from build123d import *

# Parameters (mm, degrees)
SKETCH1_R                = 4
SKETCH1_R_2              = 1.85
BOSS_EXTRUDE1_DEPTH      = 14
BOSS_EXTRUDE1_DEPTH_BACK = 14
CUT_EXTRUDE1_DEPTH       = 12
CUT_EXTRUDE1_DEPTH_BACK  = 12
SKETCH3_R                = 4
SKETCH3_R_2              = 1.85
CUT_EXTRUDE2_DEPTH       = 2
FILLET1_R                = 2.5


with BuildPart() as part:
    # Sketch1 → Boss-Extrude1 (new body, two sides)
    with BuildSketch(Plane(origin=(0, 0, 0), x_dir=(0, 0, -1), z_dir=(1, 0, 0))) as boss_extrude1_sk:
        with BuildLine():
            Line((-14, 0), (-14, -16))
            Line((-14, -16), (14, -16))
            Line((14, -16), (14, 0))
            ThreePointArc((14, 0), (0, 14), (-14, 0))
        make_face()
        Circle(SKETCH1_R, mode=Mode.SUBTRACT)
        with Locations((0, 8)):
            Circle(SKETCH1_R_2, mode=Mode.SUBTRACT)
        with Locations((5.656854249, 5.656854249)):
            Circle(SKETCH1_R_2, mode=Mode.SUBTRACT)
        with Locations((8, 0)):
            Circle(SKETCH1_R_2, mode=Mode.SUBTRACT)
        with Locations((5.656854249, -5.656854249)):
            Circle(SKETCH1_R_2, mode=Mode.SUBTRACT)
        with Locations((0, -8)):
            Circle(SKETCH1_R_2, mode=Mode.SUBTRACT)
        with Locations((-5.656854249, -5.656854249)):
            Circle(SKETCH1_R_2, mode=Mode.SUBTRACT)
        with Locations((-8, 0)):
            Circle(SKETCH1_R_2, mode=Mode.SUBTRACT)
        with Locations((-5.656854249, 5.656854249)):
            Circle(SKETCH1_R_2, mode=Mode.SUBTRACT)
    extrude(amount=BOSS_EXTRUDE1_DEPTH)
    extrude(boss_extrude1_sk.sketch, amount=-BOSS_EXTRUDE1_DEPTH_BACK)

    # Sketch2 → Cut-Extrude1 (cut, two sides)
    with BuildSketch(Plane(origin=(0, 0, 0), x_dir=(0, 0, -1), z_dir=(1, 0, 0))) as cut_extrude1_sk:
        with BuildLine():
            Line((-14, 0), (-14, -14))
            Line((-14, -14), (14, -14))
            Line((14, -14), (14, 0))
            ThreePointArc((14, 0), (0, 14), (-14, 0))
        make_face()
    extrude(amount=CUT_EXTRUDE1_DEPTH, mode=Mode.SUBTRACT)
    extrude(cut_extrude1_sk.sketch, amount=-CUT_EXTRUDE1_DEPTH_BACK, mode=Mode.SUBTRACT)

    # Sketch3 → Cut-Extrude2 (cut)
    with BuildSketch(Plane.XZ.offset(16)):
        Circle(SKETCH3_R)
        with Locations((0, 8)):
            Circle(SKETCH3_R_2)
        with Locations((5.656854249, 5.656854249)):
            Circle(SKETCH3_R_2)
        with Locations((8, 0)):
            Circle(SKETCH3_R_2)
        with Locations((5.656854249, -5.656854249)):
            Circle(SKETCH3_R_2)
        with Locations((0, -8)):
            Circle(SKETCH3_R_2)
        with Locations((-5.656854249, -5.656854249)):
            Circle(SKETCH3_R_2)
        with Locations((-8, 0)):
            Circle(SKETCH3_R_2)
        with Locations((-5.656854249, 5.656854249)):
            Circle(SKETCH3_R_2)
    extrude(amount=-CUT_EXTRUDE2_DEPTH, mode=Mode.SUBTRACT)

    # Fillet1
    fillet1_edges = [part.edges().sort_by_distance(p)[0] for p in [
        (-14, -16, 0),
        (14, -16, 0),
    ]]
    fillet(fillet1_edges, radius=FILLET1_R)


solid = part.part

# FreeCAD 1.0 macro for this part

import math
import FreeCAD as App
import Part
import Sketcher

V = App.Vector


def edges_at(feature, points):
    """Names of the edges that pass closest to the given points."""
    edges = feature.Shape.Edges
    near = lambda p: min(range(len(edges)), key=lambda i: edges[i].distToShape(Part.Vertex(*p))[0])
    return sorted({f"Edge{near(p) + 1}" for p in points})

doc = App.newDocument("Part")
body = doc.addObject("PartDesign::Body", "Body")

# Sketch on YZ plane
sketch1 = body.newObject("Sketcher::SketchObject", "Sketch")
sketch1.AttachmentSupport = (doc.getObject("YZ_Plane"), [""])
sketch1.MapMode = "FlatFace"
sketch1.addGeometry(Part.LineSegment(V(0, 14, 0), V(-16, 14, 0)), False)
sketch1.addGeometry(Part.LineSegment(V(-16, 14, 0), V(-16, -14, 0)), False)
sketch1.addGeometry(Part.LineSegment(V(-16, -14, 0), V(0, -14, 0)), False)
sketch1.addGeometry(Part.ArcOfCircle(Part.Circle(V(0, 0, 0), V(0, 0, 1), 14), math.radians(-90), math.radians(90)), False)
sketch1.addGeometry(Part.Circle(V(-5.7, 5.7, 0), V(0, 0, 1), 1.9), False)
sketch1.addGeometry(Part.Circle(V(-8, 0, 0), V(0, 0, 1), 1.9), False)
sketch1.addGeometry(Part.Circle(V(-5.7, -5.7, 0), V(0, 0, 1), 1.9), False)
sketch1.addGeometry(Part.Circle(V(0, 8, 0), V(0, 0, 1), 1.9), False)
sketch1.addGeometry(Part.Circle(V(5.7, 5.7, 0), V(0, 0, 1), 1.9), False)
sketch1.addGeometry(Part.Circle(V(0, 0, 0), V(0, 0, 1), 4), False)
sketch1.addGeometry(Part.Circle(V(0, -8, 0), V(0, 0, 1), 1.9), False)
sketch1.addGeometry(Part.Circle(V(8, 0, 0), V(0, 0, 1), 1.9), False)
sketch1.addGeometry(Part.Circle(V(5.7, -5.7, 0), V(0, 0, 1), 1.9), False)
sketch1.addConstraint(Sketcher.Constraint("Coincident", 0, 2, 1, 1))
sketch1.addConstraint(Sketcher.Constraint("Coincident", 1, 2, 2, 1))
sketch1.addConstraint(Sketcher.Constraint("Tangent", 2, 2, 3, 1))
sketch1.addConstraint(Sketcher.Constraint("Tangent", 3, 2, 0, 1))
sketch1.addConstraint(Sketcher.Constraint("Horizontal", 0))
sketch1.addConstraint(Sketcher.Constraint("Vertical", 1))
sketch1.addConstraint(Sketcher.Constraint("Horizontal", 2))
sketch1.addConstraint(Sketcher.Constraint("Coincident", 3, 3, -1, 1))
sketch1.addConstraint(Sketcher.Constraint("Coincident", 9, 3, -1, 1))
sketch1.addConstraint(Sketcher.Constraint("Equal", 4, 5))
sketch1.addConstraint(Sketcher.Constraint("Equal", 5, 6))
sketch1.addConstraint(Sketcher.Constraint("Equal", 6, 7))
sketch1.addConstraint(Sketcher.Constraint("Equal", 7, 8))
sketch1.addConstraint(Sketcher.Constraint("Equal", 8, 10))
sketch1.addConstraint(Sketcher.Constraint("Equal", 10, 11))
sketch1.addConstraint(Sketcher.Constraint("Equal", 11, 12))
sketch1.addConstraint(Sketcher.Constraint("Symmetric", 6, 3, 8, 3, -1, 1))
sketch1.addConstraint(Sketcher.Constraint("Symmetric", 7, 3, 10, 3, -1, 1))
sketch1.addConstraint(Sketcher.Constraint("Symmetric", 5, 3, 11, 3, -1, 1))
sketch1.addConstraint(Sketcher.Constraint("Symmetric", 4, 3, 12, 3, -1, 1))
sketch1.addConstraint(Sketcher.Constraint("Symmetric", 4, 3, 8, 3, -2))
sketch1.addConstraint(Sketcher.Constraint("PointOnObject", 5, 3, -1))
sketch1.addConstraint(Sketcher.Constraint("PointOnObject", 7, 3, -2))
sketch1.addConstraint(Sketcher.Constraint("Diameter", 9, 8.0))
sketch1.addConstraint(Sketcher.Constraint("Radius", 3, 14.0))
sketch1.addConstraint(Sketcher.Constraint("Diameter", 4, 3.7))
sketch1.addConstraint(Sketcher.Constraint("DistanceX", 0, 2, 0, 1, 16.0))
sketch1.addConstraint(Sketcher.Constraint("DistanceX", 5, 3, -1, 1, 8.0))
sketch1.addConstraint(Sketcher.Constraint("DistanceY", -1, 1, 7, 3, 8.0))
sketch1.addConstraint(Sketcher.Constraint("DistanceY", 6, 3, 4, 3, 11.313708))
sketch1.addConstraint(Sketcher.Constraint("DistanceX", 4, 3, 8, 3, 11.313708))
pad1 = body.newObject("PartDesign::Pad", "Pad")
pad1.Profile = sketch1
pad1.Type = "TwoLengths"
pad1.Length = 14
pad1.Length2 = 14

# Sketch on YZ plane
sketch2 = body.newObject("Sketcher::SketchObject", "Sketch001")
sketch2.AttachmentSupport = (doc.getObject("YZ_Plane"), [""])
sketch2.MapMode = "FlatFace"
sketch2.addGeometry(Part.LineSegment(V(0, 14, 0), V(-14, 14, 0)), False)
sketch2.addGeometry(Part.LineSegment(V(-14, 14, 0), V(-14, -14, 0)), False)
sketch2.addGeometry(Part.LineSegment(V(-14, -14, 0), V(0, -14, 0)), False)
sketch2.addGeometry(Part.ArcOfCircle(Part.Circle(V(0, 0, 0), V(0, 0, 1), 14), math.radians(-90), math.radians(90)), False)
sketch2.addConstraint(Sketcher.Constraint("Coincident", 0, 2, 1, 1))
sketch2.addConstraint(Sketcher.Constraint("Coincident", 1, 2, 2, 1))
sketch2.addConstraint(Sketcher.Constraint("Tangent", 2, 2, 3, 1))
sketch2.addConstraint(Sketcher.Constraint("Tangent", 3, 2, 0, 1))
sketch2.addConstraint(Sketcher.Constraint("Horizontal", 0))
sketch2.addConstraint(Sketcher.Constraint("Vertical", 1))
sketch2.addConstraint(Sketcher.Constraint("Horizontal", 2))
sketch2.addConstraint(Sketcher.Constraint("Coincident", 3, 3, -1, 1))
sketch2.addConstraint(Sketcher.Constraint("Radius", 3, 14.0))
sketch2.addConstraint(Sketcher.Constraint("DistanceX", 0, 2, 0, 1, 14.0))
pocket1 = body.newObject("PartDesign::Pocket", "Pocket")
pocket1.Profile = sketch2
pocket1.Type = "TwoLengths"
pocket1.Length = 12
pocket1.Length2 = 12
pocket1.Reversed = True

# Sketch on XZ plane
sketch3 = body.newObject("Sketcher::SketchObject", "Sketch002")
sketch3.AttachmentSupport = (doc.getObject("XZ_Plane"), [""])
sketch3.MapMode = "FlatFace"
sketch3.AttachmentOffset = App.Placement(V(0, 0, 16), App.Rotation())
sketch3.addGeometry(Part.Circle(V(0, 0, 0), V(0, 0, 1), 4), False)
sketch3.addGeometry(Part.Circle(V(0, 8, 0), V(0, 0, 1), 1.9), False)
sketch3.addGeometry(Part.Circle(V(5.7, 5.7, 0), V(0, 0, 1), 1.9), False)
sketch3.addGeometry(Part.Circle(V(8, 0, 0), V(0, 0, 1), 1.9), False)
sketch3.addGeometry(Part.Circle(V(5.7, -5.7, 0), V(0, 0, 1), 1.9), False)
sketch3.addGeometry(Part.Circle(V(0, -8, 0), V(0, 0, 1), 1.9), False)
sketch3.addGeometry(Part.Circle(V(-5.7, -5.7, 0), V(0, 0, 1), 1.9), False)
sketch3.addGeometry(Part.Circle(V(-8, 0, 0), V(0, 0, 1), 1.9), False)
sketch3.addGeometry(Part.Circle(V(-5.7, 5.7, 0), V(0, 0, 1), 1.9), False)
sketch3.addConstraint(Sketcher.Constraint("Coincident", 0, 3, -1, 1))
sketch3.addConstraint(Sketcher.Constraint("Equal", 1, 2))
sketch3.addConstraint(Sketcher.Constraint("Equal", 2, 3))
sketch3.addConstraint(Sketcher.Constraint("Equal", 3, 4))
sketch3.addConstraint(Sketcher.Constraint("Equal", 4, 5))
sketch3.addConstraint(Sketcher.Constraint("Equal", 5, 6))
sketch3.addConstraint(Sketcher.Constraint("Equal", 6, 7))
sketch3.addConstraint(Sketcher.Constraint("Equal", 7, 8))
sketch3.addConstraint(Sketcher.Constraint("Symmetric", 1, 3, 5, 3, -1, 1))
sketch3.addConstraint(Sketcher.Constraint("Symmetric", 2, 3, 6, 3, -1, 1))
sketch3.addConstraint(Sketcher.Constraint("Symmetric", 3, 3, 7, 3, -1, 1))
sketch3.addConstraint(Sketcher.Constraint("Symmetric", 4, 3, 8, 3, -1, 1))
sketch3.addConstraint(Sketcher.Constraint("Symmetric", 4, 3, 6, 3, -2))
sketch3.addConstraint(Sketcher.Constraint("PointOnObject", 1, 3, -2))
sketch3.addConstraint(Sketcher.Constraint("PointOnObject", 3, 3, -1))
sketch3.addConstraint(Sketcher.Constraint("Diameter", 0, 8.0))
sketch3.addConstraint(Sketcher.Constraint("Diameter", 1, 3.7))
sketch3.addConstraint(Sketcher.Constraint("DistanceY", -1, 1, 1, 3, 8.0))
sketch3.addConstraint(Sketcher.Constraint("DistanceX", -1, 1, 3, 3, 8.0))
sketch3.addConstraint(Sketcher.Constraint("DistanceY", 4, 3, 2, 3, 11.313708))
sketch3.addConstraint(Sketcher.Constraint("DistanceX", 6, 3, 4, 3, 11.313708))
pocket2 = body.newObject("PartDesign::Pocket", "Pocket001")
pocket2.Profile = sketch3
pocket2.Length = 2
doc.recompute()

fillet = body.newObject("PartDesign::Fillet", "Fillet")
fillet.Base = (pocket2, edges_at(pocket2, [(-14, -16, 0), (14, -16, 0)]))
fillet.Radius = 2.5

doc.recompute()
